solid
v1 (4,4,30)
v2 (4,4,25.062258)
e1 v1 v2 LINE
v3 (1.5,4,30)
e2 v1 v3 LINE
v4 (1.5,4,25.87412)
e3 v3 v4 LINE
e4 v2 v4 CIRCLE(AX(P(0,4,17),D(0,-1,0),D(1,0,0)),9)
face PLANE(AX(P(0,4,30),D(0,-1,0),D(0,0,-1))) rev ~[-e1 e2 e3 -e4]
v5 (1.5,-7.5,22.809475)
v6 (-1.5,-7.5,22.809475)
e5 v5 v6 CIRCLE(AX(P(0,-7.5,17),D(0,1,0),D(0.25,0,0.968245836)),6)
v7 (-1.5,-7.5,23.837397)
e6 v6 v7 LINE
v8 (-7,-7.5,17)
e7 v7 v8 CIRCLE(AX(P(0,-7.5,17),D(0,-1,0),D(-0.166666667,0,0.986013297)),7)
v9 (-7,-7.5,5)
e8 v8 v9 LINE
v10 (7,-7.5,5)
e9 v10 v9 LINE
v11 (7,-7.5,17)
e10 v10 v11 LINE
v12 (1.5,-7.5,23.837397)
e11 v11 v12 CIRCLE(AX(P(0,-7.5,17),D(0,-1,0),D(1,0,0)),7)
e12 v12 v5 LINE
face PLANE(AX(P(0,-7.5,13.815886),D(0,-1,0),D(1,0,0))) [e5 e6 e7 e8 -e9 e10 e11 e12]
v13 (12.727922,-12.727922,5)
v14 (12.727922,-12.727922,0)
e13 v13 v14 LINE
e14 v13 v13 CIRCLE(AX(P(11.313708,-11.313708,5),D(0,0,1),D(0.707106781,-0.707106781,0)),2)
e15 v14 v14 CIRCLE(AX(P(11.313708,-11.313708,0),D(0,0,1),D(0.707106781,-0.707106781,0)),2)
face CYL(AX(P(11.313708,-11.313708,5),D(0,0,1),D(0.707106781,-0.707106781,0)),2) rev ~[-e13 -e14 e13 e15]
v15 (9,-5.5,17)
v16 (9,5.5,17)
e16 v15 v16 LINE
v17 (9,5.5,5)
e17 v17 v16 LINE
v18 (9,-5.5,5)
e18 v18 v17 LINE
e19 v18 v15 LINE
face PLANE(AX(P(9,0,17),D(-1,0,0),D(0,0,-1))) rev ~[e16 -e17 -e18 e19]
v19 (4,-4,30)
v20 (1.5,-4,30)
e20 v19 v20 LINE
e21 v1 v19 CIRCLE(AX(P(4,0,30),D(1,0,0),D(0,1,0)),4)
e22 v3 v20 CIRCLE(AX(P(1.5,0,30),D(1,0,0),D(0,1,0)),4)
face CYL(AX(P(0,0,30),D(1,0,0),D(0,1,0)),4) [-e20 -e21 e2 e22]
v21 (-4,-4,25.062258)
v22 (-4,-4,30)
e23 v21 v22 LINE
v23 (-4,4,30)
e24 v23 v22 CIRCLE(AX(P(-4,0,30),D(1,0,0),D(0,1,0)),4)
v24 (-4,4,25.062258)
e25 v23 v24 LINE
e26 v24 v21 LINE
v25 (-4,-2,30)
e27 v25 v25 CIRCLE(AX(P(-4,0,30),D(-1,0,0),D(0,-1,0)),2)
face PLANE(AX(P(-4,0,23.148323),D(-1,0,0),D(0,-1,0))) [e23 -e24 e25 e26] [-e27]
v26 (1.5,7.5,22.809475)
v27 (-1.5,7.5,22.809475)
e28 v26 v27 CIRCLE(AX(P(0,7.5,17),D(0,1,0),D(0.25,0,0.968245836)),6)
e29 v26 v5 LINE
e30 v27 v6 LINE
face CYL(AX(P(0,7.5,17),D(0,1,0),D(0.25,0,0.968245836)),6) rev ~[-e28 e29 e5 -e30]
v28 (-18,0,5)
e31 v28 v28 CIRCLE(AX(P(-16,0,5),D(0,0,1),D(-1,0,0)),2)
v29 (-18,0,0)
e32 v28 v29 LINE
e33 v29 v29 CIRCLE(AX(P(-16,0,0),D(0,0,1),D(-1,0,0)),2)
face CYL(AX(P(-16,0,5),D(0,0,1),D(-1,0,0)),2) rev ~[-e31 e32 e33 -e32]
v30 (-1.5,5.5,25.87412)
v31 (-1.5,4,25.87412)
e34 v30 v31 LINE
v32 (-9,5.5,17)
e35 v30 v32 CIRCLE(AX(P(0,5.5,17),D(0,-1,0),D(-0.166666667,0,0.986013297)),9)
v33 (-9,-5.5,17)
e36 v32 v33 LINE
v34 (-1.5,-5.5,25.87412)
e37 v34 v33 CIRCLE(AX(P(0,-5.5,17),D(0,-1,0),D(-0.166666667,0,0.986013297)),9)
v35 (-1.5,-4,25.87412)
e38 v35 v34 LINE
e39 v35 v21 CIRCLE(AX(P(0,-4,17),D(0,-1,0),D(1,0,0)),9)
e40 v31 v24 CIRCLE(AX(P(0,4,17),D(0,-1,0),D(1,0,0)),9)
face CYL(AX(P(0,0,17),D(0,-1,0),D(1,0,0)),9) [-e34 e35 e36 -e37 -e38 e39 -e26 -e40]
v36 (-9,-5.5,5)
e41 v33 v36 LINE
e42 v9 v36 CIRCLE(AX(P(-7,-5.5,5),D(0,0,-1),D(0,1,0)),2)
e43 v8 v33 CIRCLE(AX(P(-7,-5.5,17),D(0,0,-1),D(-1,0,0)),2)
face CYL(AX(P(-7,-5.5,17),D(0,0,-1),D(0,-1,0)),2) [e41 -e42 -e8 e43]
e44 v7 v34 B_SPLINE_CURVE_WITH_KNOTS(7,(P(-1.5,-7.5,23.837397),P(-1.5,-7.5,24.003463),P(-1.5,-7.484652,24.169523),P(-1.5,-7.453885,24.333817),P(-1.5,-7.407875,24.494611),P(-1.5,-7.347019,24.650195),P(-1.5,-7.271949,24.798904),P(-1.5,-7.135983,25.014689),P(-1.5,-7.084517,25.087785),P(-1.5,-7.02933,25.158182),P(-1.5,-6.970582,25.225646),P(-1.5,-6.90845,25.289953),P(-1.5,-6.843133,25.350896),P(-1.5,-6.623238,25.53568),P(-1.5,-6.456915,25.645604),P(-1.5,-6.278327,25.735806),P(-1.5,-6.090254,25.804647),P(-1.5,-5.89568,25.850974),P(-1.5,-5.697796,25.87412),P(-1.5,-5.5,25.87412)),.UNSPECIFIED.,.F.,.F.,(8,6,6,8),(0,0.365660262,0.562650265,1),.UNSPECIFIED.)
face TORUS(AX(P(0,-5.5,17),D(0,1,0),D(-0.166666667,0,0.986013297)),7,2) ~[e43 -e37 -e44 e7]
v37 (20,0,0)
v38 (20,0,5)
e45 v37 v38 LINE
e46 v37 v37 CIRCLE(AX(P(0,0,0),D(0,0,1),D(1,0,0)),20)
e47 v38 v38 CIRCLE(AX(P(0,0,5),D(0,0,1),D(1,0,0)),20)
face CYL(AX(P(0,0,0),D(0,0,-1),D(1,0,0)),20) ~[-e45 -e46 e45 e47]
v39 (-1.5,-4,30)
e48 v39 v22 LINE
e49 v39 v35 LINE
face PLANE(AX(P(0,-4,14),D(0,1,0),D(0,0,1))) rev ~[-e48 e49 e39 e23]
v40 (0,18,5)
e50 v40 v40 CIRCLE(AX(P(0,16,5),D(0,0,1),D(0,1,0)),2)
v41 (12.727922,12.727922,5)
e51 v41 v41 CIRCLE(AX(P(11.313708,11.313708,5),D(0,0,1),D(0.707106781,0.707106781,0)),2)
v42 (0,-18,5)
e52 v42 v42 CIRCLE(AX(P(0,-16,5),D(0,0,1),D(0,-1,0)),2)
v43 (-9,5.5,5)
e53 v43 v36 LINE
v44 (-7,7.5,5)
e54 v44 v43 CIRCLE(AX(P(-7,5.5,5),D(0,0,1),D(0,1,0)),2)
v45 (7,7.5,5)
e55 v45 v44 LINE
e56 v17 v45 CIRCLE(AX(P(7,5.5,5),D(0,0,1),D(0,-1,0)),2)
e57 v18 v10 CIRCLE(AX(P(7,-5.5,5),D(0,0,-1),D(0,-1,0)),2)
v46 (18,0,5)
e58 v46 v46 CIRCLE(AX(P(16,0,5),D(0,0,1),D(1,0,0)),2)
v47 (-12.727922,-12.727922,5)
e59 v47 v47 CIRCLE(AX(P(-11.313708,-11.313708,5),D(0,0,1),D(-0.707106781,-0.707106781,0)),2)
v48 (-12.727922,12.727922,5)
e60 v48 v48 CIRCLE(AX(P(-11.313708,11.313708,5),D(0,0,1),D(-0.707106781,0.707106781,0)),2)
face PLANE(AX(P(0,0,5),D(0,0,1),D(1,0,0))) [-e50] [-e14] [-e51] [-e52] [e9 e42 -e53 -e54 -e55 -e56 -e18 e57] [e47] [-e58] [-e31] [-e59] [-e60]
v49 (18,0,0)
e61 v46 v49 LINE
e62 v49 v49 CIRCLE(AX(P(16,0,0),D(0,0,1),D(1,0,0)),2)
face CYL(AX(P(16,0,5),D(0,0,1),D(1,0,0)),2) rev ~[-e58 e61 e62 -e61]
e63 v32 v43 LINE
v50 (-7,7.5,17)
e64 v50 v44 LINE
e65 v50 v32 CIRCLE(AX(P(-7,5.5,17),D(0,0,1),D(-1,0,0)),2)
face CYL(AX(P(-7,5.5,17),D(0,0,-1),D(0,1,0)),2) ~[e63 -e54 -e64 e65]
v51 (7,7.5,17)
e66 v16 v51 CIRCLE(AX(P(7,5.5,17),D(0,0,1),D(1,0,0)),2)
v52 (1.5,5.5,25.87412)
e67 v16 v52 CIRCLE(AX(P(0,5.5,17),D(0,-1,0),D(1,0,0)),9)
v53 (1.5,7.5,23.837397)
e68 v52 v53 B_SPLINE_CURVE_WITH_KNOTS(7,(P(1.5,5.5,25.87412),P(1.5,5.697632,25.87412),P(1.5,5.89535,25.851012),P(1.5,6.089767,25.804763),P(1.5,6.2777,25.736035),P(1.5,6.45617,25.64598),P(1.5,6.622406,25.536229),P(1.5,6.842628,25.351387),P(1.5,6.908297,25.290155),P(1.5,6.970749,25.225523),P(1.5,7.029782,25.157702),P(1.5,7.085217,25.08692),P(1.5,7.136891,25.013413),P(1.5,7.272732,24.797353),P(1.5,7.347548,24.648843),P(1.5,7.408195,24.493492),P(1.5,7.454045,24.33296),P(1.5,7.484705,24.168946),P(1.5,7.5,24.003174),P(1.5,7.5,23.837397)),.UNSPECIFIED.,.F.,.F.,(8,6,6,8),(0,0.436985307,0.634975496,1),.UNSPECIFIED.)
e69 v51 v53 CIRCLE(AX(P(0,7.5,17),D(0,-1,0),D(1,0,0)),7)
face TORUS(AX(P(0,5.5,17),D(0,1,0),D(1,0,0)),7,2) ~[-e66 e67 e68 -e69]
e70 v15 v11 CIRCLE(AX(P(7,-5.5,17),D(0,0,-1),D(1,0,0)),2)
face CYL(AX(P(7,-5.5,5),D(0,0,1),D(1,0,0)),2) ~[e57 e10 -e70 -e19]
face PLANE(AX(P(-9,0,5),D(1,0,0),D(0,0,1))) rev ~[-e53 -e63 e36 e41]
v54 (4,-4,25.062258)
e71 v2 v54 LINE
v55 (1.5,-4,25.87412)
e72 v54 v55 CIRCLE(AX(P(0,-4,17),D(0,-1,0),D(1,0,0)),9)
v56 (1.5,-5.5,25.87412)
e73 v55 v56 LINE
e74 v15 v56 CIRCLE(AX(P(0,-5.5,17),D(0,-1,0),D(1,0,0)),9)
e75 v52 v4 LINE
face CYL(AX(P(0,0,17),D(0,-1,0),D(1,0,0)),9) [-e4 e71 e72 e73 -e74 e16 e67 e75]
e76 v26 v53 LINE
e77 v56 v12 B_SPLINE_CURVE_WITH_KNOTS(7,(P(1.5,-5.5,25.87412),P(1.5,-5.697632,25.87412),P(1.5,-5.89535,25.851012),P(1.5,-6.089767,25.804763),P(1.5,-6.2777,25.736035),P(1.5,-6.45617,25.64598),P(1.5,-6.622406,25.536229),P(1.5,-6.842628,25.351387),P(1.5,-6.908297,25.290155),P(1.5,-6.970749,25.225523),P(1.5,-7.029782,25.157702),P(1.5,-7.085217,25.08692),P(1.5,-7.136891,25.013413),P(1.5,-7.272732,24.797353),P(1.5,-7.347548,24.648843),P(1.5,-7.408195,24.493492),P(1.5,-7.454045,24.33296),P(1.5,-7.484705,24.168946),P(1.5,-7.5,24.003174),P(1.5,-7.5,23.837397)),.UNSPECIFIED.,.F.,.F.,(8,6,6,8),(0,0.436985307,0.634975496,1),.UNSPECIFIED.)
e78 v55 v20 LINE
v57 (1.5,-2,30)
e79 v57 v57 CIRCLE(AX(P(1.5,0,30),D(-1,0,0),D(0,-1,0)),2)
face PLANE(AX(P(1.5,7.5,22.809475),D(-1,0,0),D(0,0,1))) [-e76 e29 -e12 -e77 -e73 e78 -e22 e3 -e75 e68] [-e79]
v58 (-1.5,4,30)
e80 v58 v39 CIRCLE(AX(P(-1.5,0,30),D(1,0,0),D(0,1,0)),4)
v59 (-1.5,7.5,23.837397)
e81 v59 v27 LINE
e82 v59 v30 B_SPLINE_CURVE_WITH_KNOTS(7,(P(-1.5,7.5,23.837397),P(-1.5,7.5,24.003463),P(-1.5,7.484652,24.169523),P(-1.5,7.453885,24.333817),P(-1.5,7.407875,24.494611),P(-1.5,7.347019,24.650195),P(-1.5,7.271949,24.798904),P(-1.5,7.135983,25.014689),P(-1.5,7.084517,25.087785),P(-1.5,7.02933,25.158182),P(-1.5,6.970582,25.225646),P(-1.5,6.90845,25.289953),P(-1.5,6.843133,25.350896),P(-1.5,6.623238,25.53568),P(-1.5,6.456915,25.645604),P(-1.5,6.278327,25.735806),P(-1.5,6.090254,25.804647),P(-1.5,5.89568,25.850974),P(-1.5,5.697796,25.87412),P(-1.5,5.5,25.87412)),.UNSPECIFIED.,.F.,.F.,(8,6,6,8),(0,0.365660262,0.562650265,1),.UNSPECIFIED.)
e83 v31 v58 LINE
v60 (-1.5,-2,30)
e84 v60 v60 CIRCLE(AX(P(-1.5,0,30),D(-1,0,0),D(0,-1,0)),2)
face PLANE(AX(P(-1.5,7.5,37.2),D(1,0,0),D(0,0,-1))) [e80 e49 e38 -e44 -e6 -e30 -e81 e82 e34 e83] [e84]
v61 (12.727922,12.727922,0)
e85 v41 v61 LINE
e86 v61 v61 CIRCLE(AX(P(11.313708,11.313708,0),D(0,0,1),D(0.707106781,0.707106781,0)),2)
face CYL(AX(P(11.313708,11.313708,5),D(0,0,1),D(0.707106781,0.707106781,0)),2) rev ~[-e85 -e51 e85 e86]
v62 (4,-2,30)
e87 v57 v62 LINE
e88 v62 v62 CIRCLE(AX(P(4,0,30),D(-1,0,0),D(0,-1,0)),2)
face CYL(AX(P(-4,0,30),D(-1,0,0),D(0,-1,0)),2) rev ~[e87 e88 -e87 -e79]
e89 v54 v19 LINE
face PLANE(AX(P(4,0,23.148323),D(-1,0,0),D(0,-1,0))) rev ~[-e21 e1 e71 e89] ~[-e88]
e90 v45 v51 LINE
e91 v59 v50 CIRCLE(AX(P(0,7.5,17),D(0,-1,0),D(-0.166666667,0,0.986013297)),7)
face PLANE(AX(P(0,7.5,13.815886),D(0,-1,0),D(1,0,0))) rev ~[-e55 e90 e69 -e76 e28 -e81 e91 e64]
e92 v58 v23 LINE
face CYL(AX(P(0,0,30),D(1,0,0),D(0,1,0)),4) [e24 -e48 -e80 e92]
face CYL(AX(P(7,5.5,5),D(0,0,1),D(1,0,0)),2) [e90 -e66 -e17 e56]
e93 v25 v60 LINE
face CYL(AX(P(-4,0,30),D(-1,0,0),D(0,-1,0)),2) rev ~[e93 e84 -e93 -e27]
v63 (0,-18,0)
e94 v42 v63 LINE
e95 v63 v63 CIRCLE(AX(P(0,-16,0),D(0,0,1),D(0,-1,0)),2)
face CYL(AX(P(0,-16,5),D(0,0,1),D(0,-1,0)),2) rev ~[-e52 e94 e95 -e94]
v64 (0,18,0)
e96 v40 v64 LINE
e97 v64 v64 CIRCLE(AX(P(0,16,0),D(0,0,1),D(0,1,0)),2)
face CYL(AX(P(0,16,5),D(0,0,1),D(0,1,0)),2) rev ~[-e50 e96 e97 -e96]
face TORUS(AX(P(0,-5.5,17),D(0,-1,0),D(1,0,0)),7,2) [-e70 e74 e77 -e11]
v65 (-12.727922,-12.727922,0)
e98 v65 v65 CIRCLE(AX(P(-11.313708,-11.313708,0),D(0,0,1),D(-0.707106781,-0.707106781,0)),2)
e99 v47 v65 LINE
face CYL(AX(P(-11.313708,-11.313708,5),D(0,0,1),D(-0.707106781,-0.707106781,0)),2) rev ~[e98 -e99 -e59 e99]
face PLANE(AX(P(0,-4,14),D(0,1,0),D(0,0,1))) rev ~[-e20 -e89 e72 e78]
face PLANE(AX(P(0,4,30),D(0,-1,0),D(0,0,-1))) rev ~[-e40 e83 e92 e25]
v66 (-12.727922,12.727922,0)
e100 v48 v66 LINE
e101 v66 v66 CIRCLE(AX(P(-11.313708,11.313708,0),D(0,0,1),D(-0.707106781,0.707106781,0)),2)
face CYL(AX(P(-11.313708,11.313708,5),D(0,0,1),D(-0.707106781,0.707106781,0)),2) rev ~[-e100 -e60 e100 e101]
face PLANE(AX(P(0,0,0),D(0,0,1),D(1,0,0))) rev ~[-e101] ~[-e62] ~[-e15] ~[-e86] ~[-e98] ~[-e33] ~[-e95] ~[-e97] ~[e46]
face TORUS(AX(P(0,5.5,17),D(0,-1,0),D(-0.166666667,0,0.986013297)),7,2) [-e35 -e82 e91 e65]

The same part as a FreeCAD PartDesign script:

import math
import FreeCAD as App
import Part
import Sketcher


def edges_at(feature, points):
    """Names of the edges that pass closest to the given points."""
    edges = feature.Shape.Edges
    near = lambda p: min(range(len(edges)), key=lambda i: edges[i].distToShape(Part.Vertex(*p))[0])
    return sorted({f"Edge{near(p) + 1}" for p in points})

doc = App.newDocument("Part")
params = doc.addObject("Spreadsheet::Sheet", "Params")
for row, (alias, value) in enumerate([
    ("sketch1_diameter", "40 mm"),
    ("pad1_length", "5 mm"),
    ("sketch2_radius", "9 mm"),
    ("sketch2_height", "12 mm"),
    ("pad2_length", "15 mm"),
    ("sketch3_radius", "4 mm"),
    ("sketch3_height", "16 mm"),
    ("pad3_length", "8 mm"),
    ("sketch4_diameter", "4 mm"),
    ("sketch5_radius", "6 mm"),
    ("sketch5_width", "3 mm"),
    ("sketch6_diameter", "4 mm"),
    ("fillet_radius", "2 mm"),
], start=1):
    params.set(f"A{row}", alias)
    params.set(f"B{row}", "=" + value)
    params.setAlias(f"B{row}", alias)

body = doc.addObject("PartDesign::Body", "Body")

# Sketch on XY plane
sketch1 = body.newObject("Sketcher::SketchObject", "Sketch")
sketch1.AttachmentSupport = (doc.getObject("XY_Plane"), [""])
sketch1.MapMode = "FlatFace"
sketch1.addGeometry(Part.Circle(App.Vector(0, 0, 0), App.Vector(0, 0, 1), 20), False)
sketch1.addConstraint([
    Sketcher.Constraint("Coincident", 0, 3, -1, 1),
    Sketcher.Constraint("Diameter", 0, 40.0),
])
sketch1.setExpression("Constraints[1]", "Params.sketch1_diameter")
pad1 = body.newObject("PartDesign::Pad", "Pad")
pad1.Profile = sketch1
pad1.setExpression("Length", "Params.pad1_length")

# Sketch on XZ plane
sketch2 = body.newObject("Sketcher::SketchObject", "Sketch001")
sketch2.AttachmentSupport = (doc.getObject("XZ_Plane"), [""])
sketch2.MapMode = "FlatFace"
sketch2.addGeometry([
    Part.ArcOfCircle(Part.Circle(App.Vector(0, 17, 0), App.Vector(0, 0, 1), 9), math.radians(0), math.radians(180)),
    Part.LineSegment(App.Vector(-9, 17, 0), App.Vector(-9, 5, 0)),
    Part.LineSegment(App.Vector(-9, 5, 0), App.Vector(9, 5, 0)),
    Part.LineSegment(App.Vector(9, 5, 0), App.Vector(9, 17, 0)),
], False)
sketch2.addConstraint([
    Sketcher.Constraint("Tangent", 0, 2, 1, 1),
    Sketcher.Constraint("Coincident", 1, 2, 2, 1),
    Sketcher.Constraint("Coincident", 2, 2, 3, 1),
    Sketcher.Constraint("Tangent", 3, 2, 0, 1),
    Sketcher.Constraint("Vertical", 1),
    Sketcher.Constraint("Horizontal", 2),
    Sketcher.Constraint("Vertical", 3),
    Sketcher.Constraint("PointOnObject", 0, 3, -2),
    Sketcher.Constraint("Radius", 0, 9.0),
    Sketcher.Constraint("DistanceY", 1, 2, 1, 1, 12.0),
    Sketcher.Constraint("DistanceY", -1, 1, 0, 3, 17.0),
])
sketch2.setExpression("Constraints[8]", "Params.sketch2_radius")
sketch2.setExpression("Constraints[9]", "Params.sketch2_height")
pad2 = body.newObject("PartDesign::Pad", "Pad001")
pad2.Profile = sketch2
pad2.setExpression("Length", "Params.pad2_length")
pad2.Midplane = True

# Sketch on YZ plane
sketch3 = body.newObject("Sketcher::SketchObject", "Sketch002")
sketch3.AttachmentSupport = (doc.getObject("YZ_Plane"), [""])
sketch3.MapMode = "FlatFace"
sketch3.addGeometry([
    Part.LineSegment(App.Vector(-4, 30, 0), App.Vector(-4, 14, 0)),
    Part.LineSegment(App.Vector(-4, 14, 0), App.Vector(4, 14, 0)),
    Part.LineSegment(App.Vector(4, 14, 0), App.Vector(4, 30, 0)),
    Part.ArcOfCircle(Part.Circle(App.Vector(0, 30, 0), App.Vector(0, 0, 1), 4), math.radians(0), math.radians(180)),
], False)
sketch3.addConstraint([
    Sketcher.Constraint("Coincident", 0, 2, 1, 1),
    Sketcher.Constraint("Coincident", 1, 2, 2, 1),
    Sketcher.Constraint("Tangent", 2, 2, 3, 1),
    Sketcher.Constraint("Tangent", 3, 2, 0, 1),
    Sketcher.Constraint("Vertical", 0),
    Sketcher.Constraint("Horizontal", 1),
    Sketcher.Constraint("Vertical", 2),
    Sketcher.Constraint("PointOnObject", 3, 3, -2),
    Sketcher.Constraint("Radius", 3, 4.0),
    Sketcher.Constraint("DistanceY", 0, 2, 0, 1, 16.0),
    Sketcher.Constraint("DistanceY", -1, 1, 3, 3, 30.0),
])
sketch3.setExpression("Constraints[8]", "Params.sketch3_radius")
sketch3.setExpression("Constraints[9]", "Params.sketch3_height")
pad3 = body.newObject("PartDesign::Pad", "Pad002")
pad3.Profile = sketch3
pad3.setExpression("Length", "Params.pad3_length")
pad3.Midplane = True

# Sketch on YZ plane
sketch4 = body.newObject("Sketcher::SketchObject", "Sketch003")
sketch4.AttachmentSupport = (doc.getObject("YZ_Plane"), [""])
sketch4.MapMode = "FlatFace"
sketch4.AttachmentOffset = App.Placement(App.Vector(0, 0, -4), App.Rotation())
sketch4.addGeometry(Part.Circle(App.Vector(0, 30, 0), App.Vector(0, 0, 1), 2), False)
sketch4.addConstraint([
    Sketcher.Constraint("PointOnObject", 0, 3, -2),
    Sketcher.Constraint("Diameter", 0, 4.0),
    Sketcher.Constraint("DistanceY", -1, 1, 0, 3, 30.0),
])
sketch4.setExpression("Constraints[1]", "Params.sketch4_diameter")
pocket1 = body.newObject("PartDesign::Pocket", "Pocket")
pocket1.Profile = sketch4
pocket1.Type = "ThroughAll"
pocket1.Reversed = True

# Sketch on XZ plane
sketch5 = body.newObject("Sketcher::SketchObject", "Sketch004")
sketch5.AttachmentSupport = (doc.getObject("XZ_Plane"), [""])
sketch5.MapMode = "FlatFace"
sketch5.AttachmentOffset = App.Placement(App.Vector(0, 0, -7.5), App.Rotation())
sketch5.addGeometry([
    Part.ArcOfCircle(Part.Circle(App.Vector(0, 17, 0), App.Vector(0, 0, 1), 6), math.radians(104.477512), math.radians(435.522488)),
    Part.LineSegment(App.Vector(-1.5, 22.809475, 0), App.Vector(-1.5, 37.2, 0)),
    Part.LineSegment(App.Vector(-1.5, 37.2, 0), App.Vector(1.5, 37.2, 0)),
    Part.LineSegment(App.Vector(1.5, 37.2, 0), App.Vector(1.5, 22.809475, 0)),
], False)
sketch5.addConstraint([
    Sketcher.Constraint("Coincident", 0, 1, 1, 1),
    Sketcher.Constraint("Coincident", 1, 2, 2, 1),
    Sketcher.Constraint("Coincident", 2, 2, 3, 1),
    Sketcher.Constraint("Coincident", 3, 2, 0, 2),
    Sketcher.Constraint("Vertical", 1),
    Sketcher.Constraint("Horizontal", 2),
    Sketcher.Constraint("Vertical", 3),
    Sketcher.Constraint("Symmetric", 0, 1, 3, 2, -2),
    Sketcher.Constraint("Radius", 0, 6.0),
    Sketcher.Constraint("DistanceX", 2, 1, 2, 2, 3.0),
    Sketcher.Constraint("DistanceY", -1, 1, 0, 3, 17.0),
    Sketcher.Constraint("DistanceY", -1, 1, 1, 2, 37.2),
])
sketch5.setExpression("Constraints[8]", "Params.sketch5_radius")
sketch5.setExpression("Constraints[9]", "Params.sketch5_width")
pocket2 = body.newObject("PartDesign::Pocket", "Pocket001")
pocket2.Profile = sketch5
pocket2.Type = "ThroughAll"
pocket2.Reversed = True

# Sketch on XY plane
sketch6 = body.newObject("Sketcher::SketchObject", "Sketch005")
sketch6.AttachmentSupport = (doc.getObject("XY_Plane"), [""])
sketch6.MapMode = "FlatFace"
sketch6.AttachmentOffset = App.Placement(App.Vector(0, 0, 5), App.Rotation())
sketch6.addGeometry(Part.Circle(App.Vector(16, 0, 0), App.Vector(0, 0, 1), 2), False)
sketch6.addConstraint([
    Sketcher.Constraint("PointOnObject", 0, 3, -1),
    Sketcher.Constraint("Diameter", 0, 4.0),
    Sketcher.Constraint("DistanceX", -1, 1, 0, 3, 16.0),
])
sketch6.setExpression("Constraints[1]", "Params.sketch6_diameter")
pocket3 = body.newObject("PartDesign::Pocket", "Pocket002")
pocket3.Profile = sketch6
pocket3.Type = "ThroughAll"
doc.recompute()

polarpattern = body.newObject("PartDesign::PolarPattern", "PolarPattern")
polarpattern.Originals = [pocket3]
polarpattern.Axis = (doc.getObject("Z_Axis"), [""])
polarpattern.Angle = 360
polarpattern.Occurrences = 8
body.Tip = polarpattern
doc.recompute()

fillet = body.newObject("PartDesign::Fillet", "Fillet")
fillet.Base = (polarpattern, edges_at(polarpattern, [
    (-6.874, -7.5, 22.809),
    (6.874, -7.5, 22.809),
    (6.874, 7.5, 22.809),
    (-6.874, 7.5, 22.809),
]))
fillet.setExpression("Radius", "Params.fillet_radius")

doc.recompute()
